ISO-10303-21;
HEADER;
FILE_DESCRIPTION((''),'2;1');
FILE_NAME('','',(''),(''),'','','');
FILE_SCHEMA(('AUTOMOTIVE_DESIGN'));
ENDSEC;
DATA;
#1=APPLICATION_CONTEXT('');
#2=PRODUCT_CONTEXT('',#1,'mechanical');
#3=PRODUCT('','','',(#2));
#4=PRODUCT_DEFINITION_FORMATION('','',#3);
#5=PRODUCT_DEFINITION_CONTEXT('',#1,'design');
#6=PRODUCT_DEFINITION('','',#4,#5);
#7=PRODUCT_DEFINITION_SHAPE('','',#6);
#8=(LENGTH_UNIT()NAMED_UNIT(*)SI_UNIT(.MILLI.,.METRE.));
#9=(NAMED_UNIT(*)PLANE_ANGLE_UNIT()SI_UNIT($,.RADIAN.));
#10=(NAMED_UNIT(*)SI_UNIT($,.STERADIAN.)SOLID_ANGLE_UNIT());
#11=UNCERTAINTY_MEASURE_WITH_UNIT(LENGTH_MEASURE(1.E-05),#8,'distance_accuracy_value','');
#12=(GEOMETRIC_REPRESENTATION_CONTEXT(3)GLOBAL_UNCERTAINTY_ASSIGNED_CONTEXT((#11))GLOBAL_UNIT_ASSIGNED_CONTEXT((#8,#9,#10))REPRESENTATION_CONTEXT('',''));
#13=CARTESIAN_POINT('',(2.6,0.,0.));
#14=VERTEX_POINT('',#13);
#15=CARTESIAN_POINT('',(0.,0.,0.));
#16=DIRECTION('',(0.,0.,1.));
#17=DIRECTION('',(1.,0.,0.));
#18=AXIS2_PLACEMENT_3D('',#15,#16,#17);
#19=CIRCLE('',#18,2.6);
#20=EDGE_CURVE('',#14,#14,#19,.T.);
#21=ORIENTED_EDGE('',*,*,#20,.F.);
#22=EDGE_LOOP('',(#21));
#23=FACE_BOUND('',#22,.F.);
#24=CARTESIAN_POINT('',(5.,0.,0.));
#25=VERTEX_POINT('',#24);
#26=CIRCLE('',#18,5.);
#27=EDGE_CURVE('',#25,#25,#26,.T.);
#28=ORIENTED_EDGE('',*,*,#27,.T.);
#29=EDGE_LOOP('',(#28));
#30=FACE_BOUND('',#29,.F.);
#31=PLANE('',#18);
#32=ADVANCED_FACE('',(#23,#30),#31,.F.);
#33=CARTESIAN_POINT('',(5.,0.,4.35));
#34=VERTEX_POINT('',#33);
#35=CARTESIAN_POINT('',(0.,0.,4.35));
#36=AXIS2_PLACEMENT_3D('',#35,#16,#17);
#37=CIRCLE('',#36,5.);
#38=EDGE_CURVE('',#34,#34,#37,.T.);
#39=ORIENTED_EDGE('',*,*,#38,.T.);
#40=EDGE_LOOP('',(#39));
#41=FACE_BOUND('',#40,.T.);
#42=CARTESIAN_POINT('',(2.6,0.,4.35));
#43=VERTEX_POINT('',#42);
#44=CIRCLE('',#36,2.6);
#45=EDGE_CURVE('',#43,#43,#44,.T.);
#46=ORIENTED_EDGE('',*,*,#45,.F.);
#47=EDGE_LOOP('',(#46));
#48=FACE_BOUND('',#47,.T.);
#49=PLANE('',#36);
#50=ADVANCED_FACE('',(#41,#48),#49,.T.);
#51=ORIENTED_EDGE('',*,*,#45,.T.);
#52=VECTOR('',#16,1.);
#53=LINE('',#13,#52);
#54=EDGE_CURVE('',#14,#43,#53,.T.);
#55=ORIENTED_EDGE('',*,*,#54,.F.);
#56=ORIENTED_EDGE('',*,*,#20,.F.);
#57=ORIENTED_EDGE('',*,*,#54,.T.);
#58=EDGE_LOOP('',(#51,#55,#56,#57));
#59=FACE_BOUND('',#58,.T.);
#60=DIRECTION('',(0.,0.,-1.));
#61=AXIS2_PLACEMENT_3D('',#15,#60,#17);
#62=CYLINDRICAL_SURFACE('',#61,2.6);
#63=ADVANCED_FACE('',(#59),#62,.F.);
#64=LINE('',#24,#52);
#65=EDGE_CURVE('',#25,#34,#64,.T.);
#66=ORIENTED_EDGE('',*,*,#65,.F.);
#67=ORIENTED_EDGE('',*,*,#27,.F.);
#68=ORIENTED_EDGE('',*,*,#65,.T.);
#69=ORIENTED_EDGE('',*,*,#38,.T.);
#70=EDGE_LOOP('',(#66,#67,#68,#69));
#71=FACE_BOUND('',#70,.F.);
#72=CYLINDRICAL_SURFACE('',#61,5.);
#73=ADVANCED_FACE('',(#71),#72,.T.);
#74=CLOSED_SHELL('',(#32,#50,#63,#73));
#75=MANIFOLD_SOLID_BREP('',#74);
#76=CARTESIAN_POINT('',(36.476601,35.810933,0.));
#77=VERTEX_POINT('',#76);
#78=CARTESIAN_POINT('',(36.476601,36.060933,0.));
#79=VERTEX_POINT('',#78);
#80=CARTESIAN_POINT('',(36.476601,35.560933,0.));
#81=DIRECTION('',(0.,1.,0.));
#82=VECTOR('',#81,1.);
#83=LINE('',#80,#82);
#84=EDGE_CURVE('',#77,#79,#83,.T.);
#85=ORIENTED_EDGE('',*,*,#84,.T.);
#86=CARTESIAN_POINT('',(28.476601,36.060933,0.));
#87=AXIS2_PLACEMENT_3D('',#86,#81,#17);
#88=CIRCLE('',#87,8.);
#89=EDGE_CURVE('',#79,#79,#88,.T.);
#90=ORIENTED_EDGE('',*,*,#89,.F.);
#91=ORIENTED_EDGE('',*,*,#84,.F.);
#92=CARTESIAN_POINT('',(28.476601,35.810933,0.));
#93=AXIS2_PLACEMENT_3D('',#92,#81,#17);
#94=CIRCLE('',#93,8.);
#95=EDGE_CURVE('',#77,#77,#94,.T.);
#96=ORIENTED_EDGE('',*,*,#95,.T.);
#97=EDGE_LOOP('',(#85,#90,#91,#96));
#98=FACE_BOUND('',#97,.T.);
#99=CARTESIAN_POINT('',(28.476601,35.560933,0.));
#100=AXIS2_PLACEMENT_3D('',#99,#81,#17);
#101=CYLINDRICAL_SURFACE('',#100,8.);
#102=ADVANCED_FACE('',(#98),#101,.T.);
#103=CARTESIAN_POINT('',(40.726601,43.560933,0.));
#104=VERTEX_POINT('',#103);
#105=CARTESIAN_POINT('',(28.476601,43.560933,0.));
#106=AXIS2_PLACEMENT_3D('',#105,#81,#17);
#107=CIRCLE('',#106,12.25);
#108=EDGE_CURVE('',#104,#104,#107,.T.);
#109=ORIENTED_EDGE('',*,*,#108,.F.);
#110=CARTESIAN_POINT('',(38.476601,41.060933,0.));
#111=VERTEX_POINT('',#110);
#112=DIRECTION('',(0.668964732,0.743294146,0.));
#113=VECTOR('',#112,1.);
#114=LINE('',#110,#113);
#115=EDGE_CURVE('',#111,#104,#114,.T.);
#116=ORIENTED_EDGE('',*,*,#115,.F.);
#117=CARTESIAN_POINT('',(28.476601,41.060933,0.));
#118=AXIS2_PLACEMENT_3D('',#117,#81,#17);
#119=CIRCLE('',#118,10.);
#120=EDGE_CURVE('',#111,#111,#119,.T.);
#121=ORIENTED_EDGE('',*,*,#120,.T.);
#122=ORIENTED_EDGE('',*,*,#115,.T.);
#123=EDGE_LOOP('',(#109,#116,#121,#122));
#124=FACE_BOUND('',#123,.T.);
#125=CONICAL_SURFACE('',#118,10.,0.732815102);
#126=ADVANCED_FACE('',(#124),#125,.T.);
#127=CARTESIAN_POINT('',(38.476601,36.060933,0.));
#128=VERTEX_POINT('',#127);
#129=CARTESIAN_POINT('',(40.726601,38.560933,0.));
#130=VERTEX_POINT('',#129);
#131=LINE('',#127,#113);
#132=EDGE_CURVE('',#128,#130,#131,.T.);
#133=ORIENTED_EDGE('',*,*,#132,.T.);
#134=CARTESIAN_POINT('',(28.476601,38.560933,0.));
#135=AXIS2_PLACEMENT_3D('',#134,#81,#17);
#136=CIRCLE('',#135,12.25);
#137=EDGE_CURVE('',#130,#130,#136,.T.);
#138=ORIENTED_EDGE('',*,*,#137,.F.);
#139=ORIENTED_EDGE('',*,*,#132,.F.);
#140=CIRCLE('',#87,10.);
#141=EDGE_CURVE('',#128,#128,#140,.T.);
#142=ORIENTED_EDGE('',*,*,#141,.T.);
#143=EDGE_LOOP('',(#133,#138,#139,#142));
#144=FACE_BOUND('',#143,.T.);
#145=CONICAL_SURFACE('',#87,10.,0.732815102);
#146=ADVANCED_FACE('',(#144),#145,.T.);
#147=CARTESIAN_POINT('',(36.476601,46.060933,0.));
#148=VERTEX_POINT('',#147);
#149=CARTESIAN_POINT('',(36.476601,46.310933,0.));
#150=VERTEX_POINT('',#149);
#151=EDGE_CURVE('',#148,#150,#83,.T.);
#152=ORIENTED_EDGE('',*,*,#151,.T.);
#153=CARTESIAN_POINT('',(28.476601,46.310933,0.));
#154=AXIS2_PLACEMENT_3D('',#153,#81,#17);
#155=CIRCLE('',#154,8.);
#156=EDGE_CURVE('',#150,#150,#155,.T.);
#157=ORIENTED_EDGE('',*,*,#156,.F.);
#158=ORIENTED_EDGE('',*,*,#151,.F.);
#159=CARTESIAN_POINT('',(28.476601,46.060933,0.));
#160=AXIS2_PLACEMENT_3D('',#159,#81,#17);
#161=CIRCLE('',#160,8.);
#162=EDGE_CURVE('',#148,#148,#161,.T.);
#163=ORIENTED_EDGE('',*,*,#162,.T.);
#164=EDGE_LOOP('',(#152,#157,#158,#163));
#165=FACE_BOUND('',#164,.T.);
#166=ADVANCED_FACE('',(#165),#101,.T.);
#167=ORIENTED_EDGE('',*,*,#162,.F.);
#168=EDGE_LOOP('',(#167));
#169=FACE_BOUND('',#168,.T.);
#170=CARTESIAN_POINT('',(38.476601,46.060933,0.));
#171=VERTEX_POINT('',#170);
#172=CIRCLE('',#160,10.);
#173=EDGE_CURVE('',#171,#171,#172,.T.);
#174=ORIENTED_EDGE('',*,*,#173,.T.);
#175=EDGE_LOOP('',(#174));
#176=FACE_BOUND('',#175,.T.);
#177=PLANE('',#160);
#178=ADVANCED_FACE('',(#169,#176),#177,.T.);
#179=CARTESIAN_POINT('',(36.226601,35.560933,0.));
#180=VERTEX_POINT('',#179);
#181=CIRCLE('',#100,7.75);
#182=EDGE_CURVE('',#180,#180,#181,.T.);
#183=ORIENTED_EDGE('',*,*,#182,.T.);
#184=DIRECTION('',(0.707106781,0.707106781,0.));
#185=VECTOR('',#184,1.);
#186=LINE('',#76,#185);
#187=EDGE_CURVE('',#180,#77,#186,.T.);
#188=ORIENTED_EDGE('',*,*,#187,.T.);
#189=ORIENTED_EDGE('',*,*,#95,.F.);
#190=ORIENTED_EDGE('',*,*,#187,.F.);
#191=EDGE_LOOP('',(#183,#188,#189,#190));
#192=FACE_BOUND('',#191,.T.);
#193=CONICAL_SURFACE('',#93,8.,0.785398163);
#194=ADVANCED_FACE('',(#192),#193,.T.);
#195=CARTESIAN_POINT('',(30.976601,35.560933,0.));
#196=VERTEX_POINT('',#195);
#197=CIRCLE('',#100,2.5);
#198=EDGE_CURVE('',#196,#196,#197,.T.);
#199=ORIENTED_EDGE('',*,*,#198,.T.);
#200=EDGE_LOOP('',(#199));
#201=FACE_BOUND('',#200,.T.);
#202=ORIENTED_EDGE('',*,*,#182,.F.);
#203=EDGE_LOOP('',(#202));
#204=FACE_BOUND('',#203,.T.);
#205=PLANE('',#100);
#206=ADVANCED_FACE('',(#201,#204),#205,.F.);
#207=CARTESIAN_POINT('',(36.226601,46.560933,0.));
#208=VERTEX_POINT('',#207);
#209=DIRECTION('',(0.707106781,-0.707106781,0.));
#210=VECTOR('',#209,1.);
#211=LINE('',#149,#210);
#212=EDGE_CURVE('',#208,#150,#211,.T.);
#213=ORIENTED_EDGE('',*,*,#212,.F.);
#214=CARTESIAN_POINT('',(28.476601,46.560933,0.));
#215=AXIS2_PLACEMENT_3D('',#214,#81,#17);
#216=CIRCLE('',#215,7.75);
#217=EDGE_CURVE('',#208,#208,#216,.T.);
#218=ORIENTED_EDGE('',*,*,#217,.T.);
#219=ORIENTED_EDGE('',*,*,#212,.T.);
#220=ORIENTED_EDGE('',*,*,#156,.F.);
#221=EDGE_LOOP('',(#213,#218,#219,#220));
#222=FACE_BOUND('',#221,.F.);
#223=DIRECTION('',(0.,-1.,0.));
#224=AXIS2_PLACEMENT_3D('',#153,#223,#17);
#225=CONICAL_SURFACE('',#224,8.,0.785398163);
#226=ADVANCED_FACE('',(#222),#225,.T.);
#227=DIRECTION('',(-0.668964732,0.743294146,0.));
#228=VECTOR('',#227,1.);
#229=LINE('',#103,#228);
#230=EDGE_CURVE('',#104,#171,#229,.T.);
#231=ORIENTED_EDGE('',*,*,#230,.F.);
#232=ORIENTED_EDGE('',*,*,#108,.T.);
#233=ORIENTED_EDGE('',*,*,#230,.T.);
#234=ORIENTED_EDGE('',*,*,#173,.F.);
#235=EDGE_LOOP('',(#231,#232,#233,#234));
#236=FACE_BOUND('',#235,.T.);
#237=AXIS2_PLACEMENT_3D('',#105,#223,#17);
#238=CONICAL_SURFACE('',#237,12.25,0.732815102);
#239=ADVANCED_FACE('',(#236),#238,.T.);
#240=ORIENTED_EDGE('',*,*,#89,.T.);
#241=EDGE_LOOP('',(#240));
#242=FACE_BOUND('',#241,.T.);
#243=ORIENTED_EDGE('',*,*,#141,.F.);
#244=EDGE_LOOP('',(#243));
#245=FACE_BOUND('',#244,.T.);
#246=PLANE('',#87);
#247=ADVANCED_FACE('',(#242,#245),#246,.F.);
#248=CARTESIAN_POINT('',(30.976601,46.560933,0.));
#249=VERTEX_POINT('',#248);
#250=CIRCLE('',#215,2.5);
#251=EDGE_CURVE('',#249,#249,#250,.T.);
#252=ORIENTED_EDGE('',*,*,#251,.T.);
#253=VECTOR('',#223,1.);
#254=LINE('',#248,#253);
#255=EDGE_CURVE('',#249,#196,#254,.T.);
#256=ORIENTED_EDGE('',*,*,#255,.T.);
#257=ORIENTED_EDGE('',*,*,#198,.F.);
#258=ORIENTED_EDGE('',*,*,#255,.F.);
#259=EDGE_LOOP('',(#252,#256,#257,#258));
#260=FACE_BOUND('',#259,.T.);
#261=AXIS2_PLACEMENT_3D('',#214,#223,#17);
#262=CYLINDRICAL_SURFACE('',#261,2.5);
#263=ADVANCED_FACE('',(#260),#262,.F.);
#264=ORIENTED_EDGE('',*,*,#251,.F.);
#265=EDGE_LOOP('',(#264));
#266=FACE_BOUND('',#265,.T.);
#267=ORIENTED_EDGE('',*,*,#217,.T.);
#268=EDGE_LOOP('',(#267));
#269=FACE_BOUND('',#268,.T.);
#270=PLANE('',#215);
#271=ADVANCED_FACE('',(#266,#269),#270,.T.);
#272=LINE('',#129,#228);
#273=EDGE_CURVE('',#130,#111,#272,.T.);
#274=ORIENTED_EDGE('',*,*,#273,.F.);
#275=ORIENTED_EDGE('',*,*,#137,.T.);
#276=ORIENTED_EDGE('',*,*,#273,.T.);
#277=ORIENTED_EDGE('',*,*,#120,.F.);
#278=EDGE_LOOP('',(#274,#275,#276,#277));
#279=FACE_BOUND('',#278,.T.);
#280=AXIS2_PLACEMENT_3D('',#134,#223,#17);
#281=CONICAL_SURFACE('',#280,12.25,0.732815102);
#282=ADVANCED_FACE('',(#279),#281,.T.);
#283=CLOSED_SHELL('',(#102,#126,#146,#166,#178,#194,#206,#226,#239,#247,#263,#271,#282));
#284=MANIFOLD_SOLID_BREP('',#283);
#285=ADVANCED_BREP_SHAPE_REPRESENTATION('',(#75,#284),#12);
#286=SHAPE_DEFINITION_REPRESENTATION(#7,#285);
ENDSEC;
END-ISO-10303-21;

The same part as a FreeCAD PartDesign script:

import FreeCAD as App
import Part
import Sketcher

V = App.Vector
Q = App.Units.Quantity


def edges_at(feature, points):
    """Names of the edges that pass closest to the given points."""
    edges = feature.Shape.Edges
    near = lambda p: min(range(len(edges)), key=lambda i: edges[i].distToShape(Part.Vertex(*p))[0])
    return sorted({f"Edge{near(p) + 1}" for p in points})

doc = App.newDocument("Part")
body = doc.addObject("PartDesign::Body", "Body")

# Sketch on XY plane
sketch1 = doc.addObject("Sketcher::SketchObject", "Sketch")
body.addObject(sketch1)
sketch1.AttachmentSupport = (doc.XY_Plane, [""])
sketch1.MapMode = "FlatFace"
sketch1.addGeometry([
    Part.Circle(V(0, 0, 0), V(0, 0, 1), 5),
    Part.Circle(V(0, 0, 0), V(0, 0, 1), 2.6),
], False)
sketch1.addConstraint([
    Sketcher.Constraint("Coincident", 0, 3, -1, 1),
    Sketcher.Constraint("Coincident", 1, 3, -1, 1),
    Sketcher.Constraint("Diameter", 0, Q("10 mm")),
    Sketcher.Constraint("Diameter", 1, Q("5.2 mm")),
])
pad1 = doc.addObject("PartDesign::Pad", "Pad")
body.addObject(pad1)
pad1.Profile = sketch1
pad1.Length = 4.35
body2 = doc.addObject("PartDesign::Body", "Body001")

# Sketch on XY plane
sketch2 = doc.addObject("Sketcher::SketchObject", "Sketch001")
body2.addObject(sketch2)
sketch2.AttachmentSupport = (doc.getObject("XY_Plane001"), [""])
sketch2.MapMode = "FlatFace"
sketch2.addGeometry([
    Part.LineSegment(V(36.5, 46.6, 0), V(31, 46.6, 0)),  # 0
    Part.LineSegment(V(31, 46.6, 0), V(31, 35.6, 0)),  # 1
    Part.LineSegment(V(31, 35.6, 0), V(36.5, 35.6, 0)),  # 2
    Part.LineSegment(V(36.5, 35.6, 0), V(36.5, 36.1, 0)),  # 3
    Part.LineSegment(V(36.5, 36.1, 0), V(38.5, 36.1, 0)),  # 4
    Part.LineSegment(V(38.5, 36.1, 0), V(40.7, 38.6, 0)),  # 5
    Part.LineSegment(V(40.7, 38.6, 0), V(38.5, 41.1, 0)),  # 6
    Part.LineSegment(V(38.5, 41.1, 0), V(40.7, 43.6, 0)),  # 7
    Part.LineSegment(V(40.7, 43.6, 0), V(38.5, 46.1, 0)),  # 8
    Part.LineSegment(V(38.5, 46.1, 0), V(36.5, 46.1, 0)),  # 9
    Part.LineSegment(V(36.5, 46.1, 0), V(36.5, 46.6, 0)),  # 10
], False)
sketch2.addGeometry(Part.LineSegment(V(28.5, 35.6, 0), V(28.5, 46.6, 0)), True)  # axis
sketch2.addConstraint([
    Sketcher.Constraint("Coincident", 0, 2, 1, 1),
    Sketcher.Constraint("Coincident", 1, 2, 2, 1),
    Sketcher.Constraint("Coincident", 2, 2, 3, 1),
    Sketcher.Constraint("Coincident", 3, 2, 4, 1),
    Sketcher.Constraint("Coincident", 4, 2, 5, 1),
    Sketcher.Constraint("Coincident", 5, 2, 6, 1),
    Sketcher.Constraint("Coincident", 6, 2, 7, 1),
    Sketcher.Constraint("Coincident", 7, 2, 8, 1),
    Sketcher.Constraint("Coincident", 8, 2, 9, 1),
    Sketcher.Constraint("Coincident", 9, 2, 10, 1),
    Sketcher.Constraint("Coincident", 10, 2, 0, 1),
    Sketcher.Constraint("Horizontal", 0),
    Sketcher.Constraint("Vertical", 1),
    Sketcher.Constraint("Horizontal", 2),
    Sketcher.Constraint("Vertical", 3),
    Sketcher.Constraint("Horizontal", 4),
    Sketcher.Constraint("Horizontal", 9),
    Sketcher.Constraint("Vertical", 10),
    Sketcher.Constraint("Vertical", 11),
    Sketcher.Constraint("Parallel", 5, 7),
    Sketcher.Constraint("Parallel", 6, 8),
    Sketcher.Constraint("Horizontal", 2, 2, 11, 1),
    Sketcher.Constraint("Horizontal", 10, 2, 11, 2),
    Sketcher.Constraint("Vertical", 4, 2, 6, 2),
    Sketcher.Constraint("Vertical", 5, 2, 7, 2),
    Sketcher.Constraint("Vertical", 6, 2, 8, 2),
    Sketcher.Constraint("Vertical", 3, 2, 9, 2),
    Sketcher.Constraint("Equal", 3, 10),
    Sketcher.Constraint("Equal", 5, 6),
    Sketcher.Constraint("DistanceX", 4, 1, 4, 2, Q("2 mm")),
    Sketcher.Constraint("DistanceY", 1, 2, 1, 1, Q("11 mm")),
    Sketcher.Constraint("DistanceX", 0, 2, 0, 1, Q("5.5 mm")),
    Sketcher.Constraint("DistanceY", 3, 1, 3, 2, Q("0.5 mm")),
    Sketcher.Constraint("DistanceX", 11, 1, 2, 2, Q("8 mm")),
    Sketcher.Constraint("DistanceX", 4, 2, 5, 2, Q("2.25 mm")),
    Sketcher.Constraint("DistanceX", -1, 1, 0, 2, Q("30.976601 mm")),
    Sketcher.Constraint("DistanceY", -1, 1, 0, 2, Q("46.560933 mm")),
])
revolution = doc.addObject("PartDesign::Revolution", "Revolution")
body2.addObject(revolution)
revolution.Profile = sketch2
revolution.ReferenceAxis = (sketch2, ["Axis0"])
revolution.Angle = 360
doc.recompute()

chamfer = doc.addObject("PartDesign::Chamfer", "Chamfer")
body2.addObject(chamfer)
chamfer.Base = (revolution, edges_at(revolution, [(20.477, 35.561, 0)]))
chamfer.Size = 0.25
doc.recompute()

chamfer2 = doc.addObject("PartDesign::Chamfer", "Chamfer001")
body2.addObject(chamfer2)
chamfer2.Base = (chamfer, edges_at(chamfer, [(20.477, 46.561, 0)]))
chamfer2.Size = 0.25

doc.recompute()
